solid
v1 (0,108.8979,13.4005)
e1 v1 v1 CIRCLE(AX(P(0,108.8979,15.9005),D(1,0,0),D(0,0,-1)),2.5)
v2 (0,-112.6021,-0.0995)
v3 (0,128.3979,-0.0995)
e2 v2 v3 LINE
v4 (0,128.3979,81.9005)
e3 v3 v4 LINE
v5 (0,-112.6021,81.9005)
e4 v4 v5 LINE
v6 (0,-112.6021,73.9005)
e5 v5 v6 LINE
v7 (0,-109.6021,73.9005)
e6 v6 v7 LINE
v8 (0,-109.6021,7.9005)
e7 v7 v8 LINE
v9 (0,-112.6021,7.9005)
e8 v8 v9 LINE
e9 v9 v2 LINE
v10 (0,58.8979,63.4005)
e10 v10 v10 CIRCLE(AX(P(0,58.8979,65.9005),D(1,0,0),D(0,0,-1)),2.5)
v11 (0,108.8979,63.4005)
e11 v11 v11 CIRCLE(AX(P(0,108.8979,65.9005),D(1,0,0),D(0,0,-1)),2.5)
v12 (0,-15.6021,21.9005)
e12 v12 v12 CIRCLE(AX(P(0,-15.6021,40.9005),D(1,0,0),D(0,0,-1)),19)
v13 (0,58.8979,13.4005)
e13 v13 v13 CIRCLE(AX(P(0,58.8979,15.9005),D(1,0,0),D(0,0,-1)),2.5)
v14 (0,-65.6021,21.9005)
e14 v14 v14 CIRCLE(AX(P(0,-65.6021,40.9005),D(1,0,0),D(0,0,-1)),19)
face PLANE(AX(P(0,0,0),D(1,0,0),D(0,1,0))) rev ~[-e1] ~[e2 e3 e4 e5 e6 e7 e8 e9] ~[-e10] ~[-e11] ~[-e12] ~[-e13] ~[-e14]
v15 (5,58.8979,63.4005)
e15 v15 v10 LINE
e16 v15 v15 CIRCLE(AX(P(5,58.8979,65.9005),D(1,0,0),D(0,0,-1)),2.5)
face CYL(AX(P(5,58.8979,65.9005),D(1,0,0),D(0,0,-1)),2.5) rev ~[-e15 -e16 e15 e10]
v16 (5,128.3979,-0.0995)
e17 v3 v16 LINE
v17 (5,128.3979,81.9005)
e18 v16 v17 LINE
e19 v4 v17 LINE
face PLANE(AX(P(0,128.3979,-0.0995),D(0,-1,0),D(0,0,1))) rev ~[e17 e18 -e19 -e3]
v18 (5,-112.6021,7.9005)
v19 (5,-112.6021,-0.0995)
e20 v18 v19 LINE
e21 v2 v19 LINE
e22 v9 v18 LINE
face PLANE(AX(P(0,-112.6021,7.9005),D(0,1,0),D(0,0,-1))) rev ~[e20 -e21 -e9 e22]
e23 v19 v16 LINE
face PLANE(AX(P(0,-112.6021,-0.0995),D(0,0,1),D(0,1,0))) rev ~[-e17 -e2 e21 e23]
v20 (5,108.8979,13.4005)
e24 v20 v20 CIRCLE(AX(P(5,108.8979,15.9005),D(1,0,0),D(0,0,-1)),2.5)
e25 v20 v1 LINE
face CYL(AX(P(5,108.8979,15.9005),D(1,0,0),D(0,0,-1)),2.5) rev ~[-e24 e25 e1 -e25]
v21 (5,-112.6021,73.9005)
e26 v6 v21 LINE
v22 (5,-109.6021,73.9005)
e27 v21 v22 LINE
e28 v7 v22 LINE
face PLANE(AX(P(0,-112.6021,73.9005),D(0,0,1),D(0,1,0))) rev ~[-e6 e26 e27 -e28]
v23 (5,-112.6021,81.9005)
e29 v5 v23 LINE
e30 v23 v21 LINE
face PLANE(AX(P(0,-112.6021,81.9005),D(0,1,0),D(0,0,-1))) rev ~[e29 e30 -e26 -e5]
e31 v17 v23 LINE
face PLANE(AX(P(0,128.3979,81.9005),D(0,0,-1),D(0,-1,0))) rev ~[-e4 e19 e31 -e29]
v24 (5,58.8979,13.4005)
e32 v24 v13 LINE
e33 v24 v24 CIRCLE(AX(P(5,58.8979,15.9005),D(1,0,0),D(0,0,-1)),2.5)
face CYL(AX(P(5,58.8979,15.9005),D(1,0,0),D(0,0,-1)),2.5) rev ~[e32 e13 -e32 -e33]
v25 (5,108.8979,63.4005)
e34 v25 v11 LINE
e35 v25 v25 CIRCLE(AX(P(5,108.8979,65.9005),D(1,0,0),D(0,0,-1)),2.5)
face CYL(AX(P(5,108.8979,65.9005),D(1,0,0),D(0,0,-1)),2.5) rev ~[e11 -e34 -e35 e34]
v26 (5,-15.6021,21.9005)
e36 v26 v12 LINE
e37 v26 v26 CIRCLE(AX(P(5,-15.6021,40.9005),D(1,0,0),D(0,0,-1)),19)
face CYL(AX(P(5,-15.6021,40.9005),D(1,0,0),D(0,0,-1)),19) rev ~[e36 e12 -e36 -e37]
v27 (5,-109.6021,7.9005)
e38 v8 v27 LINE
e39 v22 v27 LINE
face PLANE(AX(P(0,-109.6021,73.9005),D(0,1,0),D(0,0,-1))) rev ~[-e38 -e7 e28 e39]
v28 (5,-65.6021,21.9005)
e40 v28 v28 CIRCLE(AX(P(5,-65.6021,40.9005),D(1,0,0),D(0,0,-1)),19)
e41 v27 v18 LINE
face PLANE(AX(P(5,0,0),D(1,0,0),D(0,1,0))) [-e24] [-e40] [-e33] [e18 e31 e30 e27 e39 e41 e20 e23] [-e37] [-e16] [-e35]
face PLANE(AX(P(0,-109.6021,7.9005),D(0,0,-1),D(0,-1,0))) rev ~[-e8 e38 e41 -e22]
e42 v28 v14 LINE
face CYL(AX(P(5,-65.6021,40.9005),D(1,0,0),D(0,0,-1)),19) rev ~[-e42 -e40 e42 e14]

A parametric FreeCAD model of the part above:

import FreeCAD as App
import Part
import Sketcher
from FreeCAD import Vector
Q = App.Units.Quantity


def add_polygon(sketch, points):
    """Adds a closed chain of lines whose ends are joined by coincident constraints."""
    first, n = sketch.GeometryCount, len(points)
    for a, b in zip(points, points[1:] + points[:1]):
        sketch.addGeometry(Part.LineSegment(App.Vector(*a, 0), App.Vector(*b, 0)), False)
    for i in range(n):
        sketch.addConstraint(Sketcher.Constraint("Coincident", first + i, 2, first + (i + 1) % n, 1))

doc = App.newDocument("Part")
body = doc.addObject("PartDesign::Body", "Body")

# Sketch on YZ plane
sketch1 = doc.addObject("Sketcher::SketchObject", "Sketch")
body.addObject(sketch1)
sketch1.AttachmentSupport = (doc.YZ_Plane, [""])
sketch1.MapMode = "FlatFace"
add_polygon(sketch1, [(128.4, -0.1), (128.4, 81.9), (-112.6, 81.9), (-112.6, 73.9), (-109.6, 73.9), (-109.6, 7.9), (-112.6, 7.9), (-112.6, -0.1)])  # lines 0-7
sketch1.addConstraint([
    Sketcher.Constraint("Vertical", 0),
    Sketcher.Constraint("Horizontal", 1),
    Sketcher.Constraint("Vertical", 2),
    Sketcher.Constraint("Horizontal", 3),
    Sketcher.Constraint("Vertical", 4),
    Sketcher.Constraint("Horizontal", 5),
    Sketcher.Constraint("Vertical", 6),
    Sketcher.Constraint("Horizontal", 7),
    Sketcher.Constraint("Vertical", 2, 2, 5, 2),
    Sketcher.Constraint("Equal", 2, 6),
    Sketcher.Constraint("DistanceX", 1, 2, 1, 1, Q("241 mm")),
    Sketcher.Constraint("DistanceX", 3, 1, 3, 2, Q("3 mm")),
    Sketcher.Constraint("DistanceY", 0, 1, 0, 2, Q("82 mm")),
    Sketcher.Constraint("DistanceY", 2, 2, 2, 1, Q("8 mm")),
    Sketcher.Constraint("DistanceX", -1, 1, 0, 2, Q("128.398 mm")),
    Sketcher.Constraint("DistanceY", -1, 1, 0, 2, Q("81.9005 mm")),
])
pad1 = doc.addObject("PartDesign::Pad", "Pad")
body.addObject(pad1)
pad1.Profile = sketch1
pad1.Length = 5

# Sketch on YZ plane
sketch2 = doc.addObject("Sketcher::SketchObject", "Sketch001")
body.addObject(sketch2)
sketch2.AttachmentSupport = (doc.YZ_Plane, [""])
sketch2.MapMode = "FlatFace"
sketch2.AttachmentOffset = App.Placement(Vector(0, 0, 5), App.Rotation())
sketch2.addGeometry([
    Part.Circle(Vector(108.9, 65.9, 0), Vector(0, 0, 1), 2.5),
    Part.Circle(Vector(108.9, 15.9, 0), Vector(0, 0, 1), 2.5),
    Part.Circle(Vector(58.9, 65.9, 0), Vector(0, 0, 1), 2.5),
    Part.Circle(Vector(58.9, 15.9, 0), Vector(0, 0, 1), 2.5),
], False)
sketch2.addConstraint([
    Sketcher.Constraint("Equal", 0, 1),
    Sketcher.Constraint("Equal", 1, 2),
    Sketcher.Constraint("Equal", 2, 3),
    Sketcher.Constraint("Horizontal", 0, 3, 2, 3),
    Sketcher.Constraint("Horizontal", 1, 3, 3, 3),
    Sketcher.Constraint("Vertical", 0, 3, 1, 3),
    Sketcher.Constraint("Vertical", 2, 3, 3, 3),
    Sketcher.Constraint("Diameter", 0, Q("5 mm")),
    Sketcher.Constraint("DistanceY", 1, 3, 0, 3, Q("50 mm")),
    Sketcher.Constraint("DistanceX", 2, 3, 0, 3, Q("50 mm")),
    Sketcher.Constraint("DistanceX", -1, 1, 0, 3, Q("108.898 mm")),
    Sketcher.Constraint("DistanceY", -1, 1, 0, 3, Q("65.9005 mm")),
])
pocket1 = doc.addObject("PartDesign::Pocket", "Pocket")
body.addObject(pocket1)
pocket1.Profile = sketch2
pocket1.Length = 5

# Sketch on YZ plane
sketch3 = doc.addObject("Sketcher::SketchObject", "Sketch002")
body.addObject(sketch3)
sketch3.AttachmentSupport = (doc.YZ_Plane, [""])
sketch3.MapMode = "FlatFace"
sketch3.AttachmentOffset = App.Placement(Vector(0, 0, 5), App.Rotation())
sketch3.addGeometry(Part.Circle(Vector(-66, 41, 0), Vector(0, 0, 1), 19), False)
sketch3.addConstraint([
    Sketcher.Constraint("Diameter", 0, Q("38 mm")),
    Sketcher.Constraint("DistanceX", 0, 3, -1, 1, Q("65.602 mm")),
    Sketcher.Constraint("DistanceY", -1, 1, 0, 3, Q("40.9005 mm")),
])
pocket2 = doc.addObject("PartDesign::Pocket", "Pocket001")
body.addObject(pocket2)
pocket2.Profile = sketch3
pocket2.Length = 5
doc.recompute()

linearpattern = doc.addObject("PartDesign::LinearPattern", "LinearPattern")
body.addObject(linearpattern)
linearpattern.Originals = [pocket2]
linearpattern.Direction = (doc.Y_Axis, [""])
linearpattern.Mode = "offset"
linearpattern.Offset = 50
linearpattern.Occurrences = 2
body.Tip = linearpattern

doc.recompute()
